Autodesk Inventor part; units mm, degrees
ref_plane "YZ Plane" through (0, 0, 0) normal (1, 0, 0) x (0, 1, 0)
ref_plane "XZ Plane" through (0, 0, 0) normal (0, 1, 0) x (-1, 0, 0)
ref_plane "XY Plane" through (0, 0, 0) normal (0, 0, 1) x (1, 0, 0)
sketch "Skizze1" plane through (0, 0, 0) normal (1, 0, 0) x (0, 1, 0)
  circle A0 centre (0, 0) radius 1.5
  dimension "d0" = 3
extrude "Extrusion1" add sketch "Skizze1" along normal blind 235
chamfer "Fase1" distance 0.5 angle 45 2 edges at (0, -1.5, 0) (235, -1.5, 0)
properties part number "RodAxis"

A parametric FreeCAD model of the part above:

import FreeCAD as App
import Part
import Sketcher
from FreeCAD import Vector
Q = App.Units.Quantity


def edges_at(feature, points):
    """Names of the edges that pass closest to the given points."""
    edges = feature.Shape.Edges
    near = lambda p: min(range(len(edges)), key=lambda i: edges[i].distToShape(Part.Vertex(*p))[0])
    return sorted({f"Edge{near(p) + 1}" for p in points})

doc = App.newDocument("Part")
params = doc.addObject("Spreadsheet::Sheet", "Params")
for row, (alias, value) in enumerate([
    ("sketch1_diameter", "3 mm"),
    ("pad1_length", "235 mm"),
    ("chamfer_size", "0.5 mm"),
], start=1):
    params.set(f"A{row}", alias)
    params.set(f"B{row}", "=" + value)
    params.setAlias(f"B{row}", alias)

body = doc.addObject("PartDesign::Body", "Body")

sketch1 = body.newObject("Sketcher::SketchObject", "Sketch")
sketch1.AttachmentSupport = (doc.getObject("YZ_Plane"), [""])
sketch1.MapMode = "FlatFace"
sketch1.addGeometry(Part.Circle(Vector(0, 0, 0), Vector(0, 0, 1), 1.5), False)
sketch1.addConstraint([
    Sketcher.Constraint("Coincident", 0, 3, -1, 1),
    Sketcher.Constraint("Diameter", 0, Q("3 mm")),
])
sketch1.setExpression("Constraints[1]", "Params.sketch1_diameter")
pad1 = body.newObject("PartDesign::Pad", "Pad")
pad1.Profile = sketch1
pad1.setExpression("Length", "Params.pad1_length")
doc.recompute()

chamfer = body.newObject("PartDesign::Chamfer", "Chamfer")
chamfer.Base = (pad1, edges_at(pad1, [(0, -1.5, 0), (235, -1.5, 0)]))
chamfer.setExpression("Size", "Params.chamfer_size")

doc.recompute()
